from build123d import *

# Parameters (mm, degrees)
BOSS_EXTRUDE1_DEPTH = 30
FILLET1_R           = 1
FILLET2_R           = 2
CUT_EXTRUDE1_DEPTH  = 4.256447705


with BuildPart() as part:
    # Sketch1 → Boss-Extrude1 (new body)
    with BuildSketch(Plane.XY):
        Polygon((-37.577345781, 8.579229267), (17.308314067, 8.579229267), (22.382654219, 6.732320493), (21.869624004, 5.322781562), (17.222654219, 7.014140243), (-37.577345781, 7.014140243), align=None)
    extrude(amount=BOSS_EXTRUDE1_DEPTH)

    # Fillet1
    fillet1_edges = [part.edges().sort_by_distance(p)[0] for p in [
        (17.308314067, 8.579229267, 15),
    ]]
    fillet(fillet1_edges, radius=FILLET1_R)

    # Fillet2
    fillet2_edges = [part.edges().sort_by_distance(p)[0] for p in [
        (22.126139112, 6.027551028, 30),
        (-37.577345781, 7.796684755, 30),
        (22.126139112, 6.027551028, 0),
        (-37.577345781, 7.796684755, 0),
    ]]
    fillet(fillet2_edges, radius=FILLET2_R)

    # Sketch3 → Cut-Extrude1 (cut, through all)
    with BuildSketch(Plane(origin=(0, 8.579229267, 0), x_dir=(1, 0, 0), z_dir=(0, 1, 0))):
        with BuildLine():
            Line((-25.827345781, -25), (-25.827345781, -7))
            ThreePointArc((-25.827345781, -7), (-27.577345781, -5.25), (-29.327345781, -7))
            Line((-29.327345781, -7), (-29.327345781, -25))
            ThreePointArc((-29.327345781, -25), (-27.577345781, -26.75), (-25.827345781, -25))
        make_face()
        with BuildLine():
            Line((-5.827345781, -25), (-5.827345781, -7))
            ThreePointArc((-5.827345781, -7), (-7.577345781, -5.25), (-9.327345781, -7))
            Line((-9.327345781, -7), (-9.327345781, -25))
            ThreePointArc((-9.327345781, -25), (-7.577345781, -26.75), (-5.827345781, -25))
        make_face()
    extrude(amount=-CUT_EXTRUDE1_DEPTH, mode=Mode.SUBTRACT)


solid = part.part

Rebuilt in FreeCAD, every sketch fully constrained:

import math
import FreeCAD as App
import Part
import Sketcher
Q = App.Units.Quantity


def edges_at(feature, points):
    """Names of the edges that pass closest to the given points."""
    edges = feature.Shape.Edges
    near = lambda p: min(range(len(edges)), key=lambda i: edges[i].distToShape(Part.Vertex(*p))[0])
    return sorted({f"Edge{near(p) + 1}" for p in points})

doc = App.newDocument("Part")
body = doc.addObject("PartDesign::Body", "Body")

# Sketch on XY plane
sketch1 = body.newObject("Sketcher::SketchObject", "Sketch")
sketch1.AttachmentSupport = (doc.getObject("XY_Plane"), [""])
sketch1.MapMode = "FlatFace"
sketch1.addGeometry([
    Part.LineSegment(App.Vector(17.3, 8.6, 0), App.Vector(-37.6, 8.6, 0)),  # 0
    Part.LineSegment(App.Vector(-37.6, 8.6, 0), App.Vector(-37.6, 7, 0)),  # 1
    Part.LineSegment(App.Vector(-37.6, 7, 0), App.Vector(17.2, 7, 0)),  # 2
    Part.LineSegment(App.Vector(17.2, 7, 0), App.Vector(21.9, 5.3, 0)),  # 3
    Part.LineSegment(App.Vector(21.9, 5.3, 0), App.Vector(22.4, 6.7, 0)),  # 4
    Part.LineSegment(App.Vector(22.4, 6.7, 0), App.Vector(17.3, 8.6, 0)),  # 5
], False)
sketch1.addConstraint([
    Sketcher.Constraint("Coincident", 0, 2, 1, 1),
    Sketcher.Constraint("Coincident", 1, 2, 2, 1),
    Sketcher.Constraint("Coincident", 2, 2, 3, 1),
    Sketcher.Constraint("Coincident", 3, 2, 4, 1),
    Sketcher.Constraint("Coincident", 4, 2, 5, 1),
    Sketcher.Constraint("Coincident", 5, 2, 0, 1),
    Sketcher.Constraint("Horizontal", 0),
    Sketcher.Constraint("Vertical", 1),
    Sketcher.Constraint("Horizontal", 2),
    Sketcher.Constraint("Perpendicular", 3, 4),
    Sketcher.Constraint("Perpendicular", 4, 5),
    Sketcher.Constraint("Angle", 3, Q("-20 deg")),
    Sketcher.Constraint("DistanceX", 2, 1, 2, 2, 54.8),
    Sketcher.Constraint("Distance", 4, 1.5),
    Sketcher.Constraint("Distance", 5, 5.4),
    Sketcher.Constraint("DistanceX", 2, 2, 4, 2, 5.16),
    Sketcher.Constraint("DistanceY", -1, 1, 0, 2, 8.579229),
    Sketcher.Constraint("DistanceX", 0, 2, -1, 1, 37.577346),
])
pad1 = body.newObject("PartDesign::Pad", "Pad")
pad1.Profile = sketch1
pad1.Length = 30
doc.recompute()

fillet = body.newObject("PartDesign::Fillet", "Fillet")
fillet.Base = (pad1, edges_at(pad1, [(17.308, 8.579, 15)]))
fillet.Radius = 1
doc.recompute()

fillet2 = body.newObject("PartDesign::Fillet", "Fillet001")
fillet2.Base = (fillet, edges_at(fillet, [
    (22.126, 6.028, 30),
    (-37.577, 7.797, 30),
    (22.126, 6.028, 0),
    (-37.577, 7.797, 0),
]))
fillet2.Radius = 2

# Sketch on XZ plane
sketch2 = body.newObject("Sketcher::SketchObject", "Sketch001")
sketch2.AttachmentSupport = (doc.getObject("XZ_Plane"), [""])
sketch2.MapMode = "FlatFace"
sketch2.AttachmentOffset = App.Placement(App.Vector(0, 0, -8.579229), App.Rotation())
sketch2.addGeometry([
    Part.LineSegment(App.Vector(-25.8, 25, 0), App.Vector(-25.8, 7, 0)),  # 0
    Part.ArcOfCircle(Part.Circle(App.Vector(-27.6, 7, 0), App.Vector(0, 0, 1), 1.8), math.radians(180), math.radians(360)),  # 1
    Part.LineSegment(App.Vector(-29.3, 7, 0), App.Vector(-29.3, 25, 0)),  # 2
    Part.ArcOfCircle(Part.Circle(App.Vector(-27.6, 25, 0), App.Vector(0, 0, 1), 1.8), math.radians(0), math.radians(180)),  # 3
    Part.LineSegment(App.Vector(-5.8, 25, 0), App.Vector(-5.8, 7, 0)),  # 4
    Part.ArcOfCircle(Part.Circle(App.Vector(-7.6, 7, 0), App.Vector(0, 0, 1), 1.8), math.radians(180), math.radians(360)),  # 5
    Part.LineSegment(App.Vector(-9.3, 7, 0), App.Vector(-9.3, 25, 0)),  # 6
    Part.ArcOfCircle(Part.Circle(App.Vector(-7.6, 25, 0), App.Vector(0, 0, 1), 1.8), math.radians(0), math.radians(180)),  # 7
], False)
sketch2.addConstraint([
    Sketcher.Constraint("Tangent", 0, 2, 1, 2),
    Sketcher.Constraint("Tangent", 1, 1, 2, 1),
    Sketcher.Constraint("Tangent", 2, 2, 3, 2),
    Sketcher.Constraint("Tangent", 3, 1, 0, 1),
    Sketcher.Constraint("Tangent", 4, 2, 5, 2),
    Sketcher.Constraint("Tangent", 5, 1, 6, 1),
    Sketcher.Constraint("Tangent", 6, 2, 7, 2),
    Sketcher.Constraint("Tangent", 7, 1, 4, 1),
    Sketcher.Constraint("Vertical", 0),
    Sketcher.Constraint("Vertical", 2),
    Sketcher.Constraint("Vertical", 4),
    Sketcher.Constraint("Vertical", 6),
    Sketcher.Constraint("Equal", 3, 5),
    Sketcher.Constraint("Horizontal", 1, 3, 5, 3),
    Sketcher.Constraint("Horizontal", 3, 3, 7, 3),
    Sketcher.Constraint("DistanceY", 0, 2, 0, 1, 18.0),
    Sketcher.Constraint("Radius", 1, 1.75),
    Sketcher.Constraint("DistanceY", -1, 1, 1, 3, 7.0),
    Sketcher.Constraint("DistanceX", 1, 3, 5, 3, 20.0),
    Sketcher.Constraint("DistanceX", 1, 3, -1, 1, 27.577346),
])
pocket1 = body.newObject("PartDesign::Pocket", "Pocket")
pocket1.Profile = sketch2
pocket1.Type = "ThroughAll"
pocket1.Reversed = True

doc.recompute()
